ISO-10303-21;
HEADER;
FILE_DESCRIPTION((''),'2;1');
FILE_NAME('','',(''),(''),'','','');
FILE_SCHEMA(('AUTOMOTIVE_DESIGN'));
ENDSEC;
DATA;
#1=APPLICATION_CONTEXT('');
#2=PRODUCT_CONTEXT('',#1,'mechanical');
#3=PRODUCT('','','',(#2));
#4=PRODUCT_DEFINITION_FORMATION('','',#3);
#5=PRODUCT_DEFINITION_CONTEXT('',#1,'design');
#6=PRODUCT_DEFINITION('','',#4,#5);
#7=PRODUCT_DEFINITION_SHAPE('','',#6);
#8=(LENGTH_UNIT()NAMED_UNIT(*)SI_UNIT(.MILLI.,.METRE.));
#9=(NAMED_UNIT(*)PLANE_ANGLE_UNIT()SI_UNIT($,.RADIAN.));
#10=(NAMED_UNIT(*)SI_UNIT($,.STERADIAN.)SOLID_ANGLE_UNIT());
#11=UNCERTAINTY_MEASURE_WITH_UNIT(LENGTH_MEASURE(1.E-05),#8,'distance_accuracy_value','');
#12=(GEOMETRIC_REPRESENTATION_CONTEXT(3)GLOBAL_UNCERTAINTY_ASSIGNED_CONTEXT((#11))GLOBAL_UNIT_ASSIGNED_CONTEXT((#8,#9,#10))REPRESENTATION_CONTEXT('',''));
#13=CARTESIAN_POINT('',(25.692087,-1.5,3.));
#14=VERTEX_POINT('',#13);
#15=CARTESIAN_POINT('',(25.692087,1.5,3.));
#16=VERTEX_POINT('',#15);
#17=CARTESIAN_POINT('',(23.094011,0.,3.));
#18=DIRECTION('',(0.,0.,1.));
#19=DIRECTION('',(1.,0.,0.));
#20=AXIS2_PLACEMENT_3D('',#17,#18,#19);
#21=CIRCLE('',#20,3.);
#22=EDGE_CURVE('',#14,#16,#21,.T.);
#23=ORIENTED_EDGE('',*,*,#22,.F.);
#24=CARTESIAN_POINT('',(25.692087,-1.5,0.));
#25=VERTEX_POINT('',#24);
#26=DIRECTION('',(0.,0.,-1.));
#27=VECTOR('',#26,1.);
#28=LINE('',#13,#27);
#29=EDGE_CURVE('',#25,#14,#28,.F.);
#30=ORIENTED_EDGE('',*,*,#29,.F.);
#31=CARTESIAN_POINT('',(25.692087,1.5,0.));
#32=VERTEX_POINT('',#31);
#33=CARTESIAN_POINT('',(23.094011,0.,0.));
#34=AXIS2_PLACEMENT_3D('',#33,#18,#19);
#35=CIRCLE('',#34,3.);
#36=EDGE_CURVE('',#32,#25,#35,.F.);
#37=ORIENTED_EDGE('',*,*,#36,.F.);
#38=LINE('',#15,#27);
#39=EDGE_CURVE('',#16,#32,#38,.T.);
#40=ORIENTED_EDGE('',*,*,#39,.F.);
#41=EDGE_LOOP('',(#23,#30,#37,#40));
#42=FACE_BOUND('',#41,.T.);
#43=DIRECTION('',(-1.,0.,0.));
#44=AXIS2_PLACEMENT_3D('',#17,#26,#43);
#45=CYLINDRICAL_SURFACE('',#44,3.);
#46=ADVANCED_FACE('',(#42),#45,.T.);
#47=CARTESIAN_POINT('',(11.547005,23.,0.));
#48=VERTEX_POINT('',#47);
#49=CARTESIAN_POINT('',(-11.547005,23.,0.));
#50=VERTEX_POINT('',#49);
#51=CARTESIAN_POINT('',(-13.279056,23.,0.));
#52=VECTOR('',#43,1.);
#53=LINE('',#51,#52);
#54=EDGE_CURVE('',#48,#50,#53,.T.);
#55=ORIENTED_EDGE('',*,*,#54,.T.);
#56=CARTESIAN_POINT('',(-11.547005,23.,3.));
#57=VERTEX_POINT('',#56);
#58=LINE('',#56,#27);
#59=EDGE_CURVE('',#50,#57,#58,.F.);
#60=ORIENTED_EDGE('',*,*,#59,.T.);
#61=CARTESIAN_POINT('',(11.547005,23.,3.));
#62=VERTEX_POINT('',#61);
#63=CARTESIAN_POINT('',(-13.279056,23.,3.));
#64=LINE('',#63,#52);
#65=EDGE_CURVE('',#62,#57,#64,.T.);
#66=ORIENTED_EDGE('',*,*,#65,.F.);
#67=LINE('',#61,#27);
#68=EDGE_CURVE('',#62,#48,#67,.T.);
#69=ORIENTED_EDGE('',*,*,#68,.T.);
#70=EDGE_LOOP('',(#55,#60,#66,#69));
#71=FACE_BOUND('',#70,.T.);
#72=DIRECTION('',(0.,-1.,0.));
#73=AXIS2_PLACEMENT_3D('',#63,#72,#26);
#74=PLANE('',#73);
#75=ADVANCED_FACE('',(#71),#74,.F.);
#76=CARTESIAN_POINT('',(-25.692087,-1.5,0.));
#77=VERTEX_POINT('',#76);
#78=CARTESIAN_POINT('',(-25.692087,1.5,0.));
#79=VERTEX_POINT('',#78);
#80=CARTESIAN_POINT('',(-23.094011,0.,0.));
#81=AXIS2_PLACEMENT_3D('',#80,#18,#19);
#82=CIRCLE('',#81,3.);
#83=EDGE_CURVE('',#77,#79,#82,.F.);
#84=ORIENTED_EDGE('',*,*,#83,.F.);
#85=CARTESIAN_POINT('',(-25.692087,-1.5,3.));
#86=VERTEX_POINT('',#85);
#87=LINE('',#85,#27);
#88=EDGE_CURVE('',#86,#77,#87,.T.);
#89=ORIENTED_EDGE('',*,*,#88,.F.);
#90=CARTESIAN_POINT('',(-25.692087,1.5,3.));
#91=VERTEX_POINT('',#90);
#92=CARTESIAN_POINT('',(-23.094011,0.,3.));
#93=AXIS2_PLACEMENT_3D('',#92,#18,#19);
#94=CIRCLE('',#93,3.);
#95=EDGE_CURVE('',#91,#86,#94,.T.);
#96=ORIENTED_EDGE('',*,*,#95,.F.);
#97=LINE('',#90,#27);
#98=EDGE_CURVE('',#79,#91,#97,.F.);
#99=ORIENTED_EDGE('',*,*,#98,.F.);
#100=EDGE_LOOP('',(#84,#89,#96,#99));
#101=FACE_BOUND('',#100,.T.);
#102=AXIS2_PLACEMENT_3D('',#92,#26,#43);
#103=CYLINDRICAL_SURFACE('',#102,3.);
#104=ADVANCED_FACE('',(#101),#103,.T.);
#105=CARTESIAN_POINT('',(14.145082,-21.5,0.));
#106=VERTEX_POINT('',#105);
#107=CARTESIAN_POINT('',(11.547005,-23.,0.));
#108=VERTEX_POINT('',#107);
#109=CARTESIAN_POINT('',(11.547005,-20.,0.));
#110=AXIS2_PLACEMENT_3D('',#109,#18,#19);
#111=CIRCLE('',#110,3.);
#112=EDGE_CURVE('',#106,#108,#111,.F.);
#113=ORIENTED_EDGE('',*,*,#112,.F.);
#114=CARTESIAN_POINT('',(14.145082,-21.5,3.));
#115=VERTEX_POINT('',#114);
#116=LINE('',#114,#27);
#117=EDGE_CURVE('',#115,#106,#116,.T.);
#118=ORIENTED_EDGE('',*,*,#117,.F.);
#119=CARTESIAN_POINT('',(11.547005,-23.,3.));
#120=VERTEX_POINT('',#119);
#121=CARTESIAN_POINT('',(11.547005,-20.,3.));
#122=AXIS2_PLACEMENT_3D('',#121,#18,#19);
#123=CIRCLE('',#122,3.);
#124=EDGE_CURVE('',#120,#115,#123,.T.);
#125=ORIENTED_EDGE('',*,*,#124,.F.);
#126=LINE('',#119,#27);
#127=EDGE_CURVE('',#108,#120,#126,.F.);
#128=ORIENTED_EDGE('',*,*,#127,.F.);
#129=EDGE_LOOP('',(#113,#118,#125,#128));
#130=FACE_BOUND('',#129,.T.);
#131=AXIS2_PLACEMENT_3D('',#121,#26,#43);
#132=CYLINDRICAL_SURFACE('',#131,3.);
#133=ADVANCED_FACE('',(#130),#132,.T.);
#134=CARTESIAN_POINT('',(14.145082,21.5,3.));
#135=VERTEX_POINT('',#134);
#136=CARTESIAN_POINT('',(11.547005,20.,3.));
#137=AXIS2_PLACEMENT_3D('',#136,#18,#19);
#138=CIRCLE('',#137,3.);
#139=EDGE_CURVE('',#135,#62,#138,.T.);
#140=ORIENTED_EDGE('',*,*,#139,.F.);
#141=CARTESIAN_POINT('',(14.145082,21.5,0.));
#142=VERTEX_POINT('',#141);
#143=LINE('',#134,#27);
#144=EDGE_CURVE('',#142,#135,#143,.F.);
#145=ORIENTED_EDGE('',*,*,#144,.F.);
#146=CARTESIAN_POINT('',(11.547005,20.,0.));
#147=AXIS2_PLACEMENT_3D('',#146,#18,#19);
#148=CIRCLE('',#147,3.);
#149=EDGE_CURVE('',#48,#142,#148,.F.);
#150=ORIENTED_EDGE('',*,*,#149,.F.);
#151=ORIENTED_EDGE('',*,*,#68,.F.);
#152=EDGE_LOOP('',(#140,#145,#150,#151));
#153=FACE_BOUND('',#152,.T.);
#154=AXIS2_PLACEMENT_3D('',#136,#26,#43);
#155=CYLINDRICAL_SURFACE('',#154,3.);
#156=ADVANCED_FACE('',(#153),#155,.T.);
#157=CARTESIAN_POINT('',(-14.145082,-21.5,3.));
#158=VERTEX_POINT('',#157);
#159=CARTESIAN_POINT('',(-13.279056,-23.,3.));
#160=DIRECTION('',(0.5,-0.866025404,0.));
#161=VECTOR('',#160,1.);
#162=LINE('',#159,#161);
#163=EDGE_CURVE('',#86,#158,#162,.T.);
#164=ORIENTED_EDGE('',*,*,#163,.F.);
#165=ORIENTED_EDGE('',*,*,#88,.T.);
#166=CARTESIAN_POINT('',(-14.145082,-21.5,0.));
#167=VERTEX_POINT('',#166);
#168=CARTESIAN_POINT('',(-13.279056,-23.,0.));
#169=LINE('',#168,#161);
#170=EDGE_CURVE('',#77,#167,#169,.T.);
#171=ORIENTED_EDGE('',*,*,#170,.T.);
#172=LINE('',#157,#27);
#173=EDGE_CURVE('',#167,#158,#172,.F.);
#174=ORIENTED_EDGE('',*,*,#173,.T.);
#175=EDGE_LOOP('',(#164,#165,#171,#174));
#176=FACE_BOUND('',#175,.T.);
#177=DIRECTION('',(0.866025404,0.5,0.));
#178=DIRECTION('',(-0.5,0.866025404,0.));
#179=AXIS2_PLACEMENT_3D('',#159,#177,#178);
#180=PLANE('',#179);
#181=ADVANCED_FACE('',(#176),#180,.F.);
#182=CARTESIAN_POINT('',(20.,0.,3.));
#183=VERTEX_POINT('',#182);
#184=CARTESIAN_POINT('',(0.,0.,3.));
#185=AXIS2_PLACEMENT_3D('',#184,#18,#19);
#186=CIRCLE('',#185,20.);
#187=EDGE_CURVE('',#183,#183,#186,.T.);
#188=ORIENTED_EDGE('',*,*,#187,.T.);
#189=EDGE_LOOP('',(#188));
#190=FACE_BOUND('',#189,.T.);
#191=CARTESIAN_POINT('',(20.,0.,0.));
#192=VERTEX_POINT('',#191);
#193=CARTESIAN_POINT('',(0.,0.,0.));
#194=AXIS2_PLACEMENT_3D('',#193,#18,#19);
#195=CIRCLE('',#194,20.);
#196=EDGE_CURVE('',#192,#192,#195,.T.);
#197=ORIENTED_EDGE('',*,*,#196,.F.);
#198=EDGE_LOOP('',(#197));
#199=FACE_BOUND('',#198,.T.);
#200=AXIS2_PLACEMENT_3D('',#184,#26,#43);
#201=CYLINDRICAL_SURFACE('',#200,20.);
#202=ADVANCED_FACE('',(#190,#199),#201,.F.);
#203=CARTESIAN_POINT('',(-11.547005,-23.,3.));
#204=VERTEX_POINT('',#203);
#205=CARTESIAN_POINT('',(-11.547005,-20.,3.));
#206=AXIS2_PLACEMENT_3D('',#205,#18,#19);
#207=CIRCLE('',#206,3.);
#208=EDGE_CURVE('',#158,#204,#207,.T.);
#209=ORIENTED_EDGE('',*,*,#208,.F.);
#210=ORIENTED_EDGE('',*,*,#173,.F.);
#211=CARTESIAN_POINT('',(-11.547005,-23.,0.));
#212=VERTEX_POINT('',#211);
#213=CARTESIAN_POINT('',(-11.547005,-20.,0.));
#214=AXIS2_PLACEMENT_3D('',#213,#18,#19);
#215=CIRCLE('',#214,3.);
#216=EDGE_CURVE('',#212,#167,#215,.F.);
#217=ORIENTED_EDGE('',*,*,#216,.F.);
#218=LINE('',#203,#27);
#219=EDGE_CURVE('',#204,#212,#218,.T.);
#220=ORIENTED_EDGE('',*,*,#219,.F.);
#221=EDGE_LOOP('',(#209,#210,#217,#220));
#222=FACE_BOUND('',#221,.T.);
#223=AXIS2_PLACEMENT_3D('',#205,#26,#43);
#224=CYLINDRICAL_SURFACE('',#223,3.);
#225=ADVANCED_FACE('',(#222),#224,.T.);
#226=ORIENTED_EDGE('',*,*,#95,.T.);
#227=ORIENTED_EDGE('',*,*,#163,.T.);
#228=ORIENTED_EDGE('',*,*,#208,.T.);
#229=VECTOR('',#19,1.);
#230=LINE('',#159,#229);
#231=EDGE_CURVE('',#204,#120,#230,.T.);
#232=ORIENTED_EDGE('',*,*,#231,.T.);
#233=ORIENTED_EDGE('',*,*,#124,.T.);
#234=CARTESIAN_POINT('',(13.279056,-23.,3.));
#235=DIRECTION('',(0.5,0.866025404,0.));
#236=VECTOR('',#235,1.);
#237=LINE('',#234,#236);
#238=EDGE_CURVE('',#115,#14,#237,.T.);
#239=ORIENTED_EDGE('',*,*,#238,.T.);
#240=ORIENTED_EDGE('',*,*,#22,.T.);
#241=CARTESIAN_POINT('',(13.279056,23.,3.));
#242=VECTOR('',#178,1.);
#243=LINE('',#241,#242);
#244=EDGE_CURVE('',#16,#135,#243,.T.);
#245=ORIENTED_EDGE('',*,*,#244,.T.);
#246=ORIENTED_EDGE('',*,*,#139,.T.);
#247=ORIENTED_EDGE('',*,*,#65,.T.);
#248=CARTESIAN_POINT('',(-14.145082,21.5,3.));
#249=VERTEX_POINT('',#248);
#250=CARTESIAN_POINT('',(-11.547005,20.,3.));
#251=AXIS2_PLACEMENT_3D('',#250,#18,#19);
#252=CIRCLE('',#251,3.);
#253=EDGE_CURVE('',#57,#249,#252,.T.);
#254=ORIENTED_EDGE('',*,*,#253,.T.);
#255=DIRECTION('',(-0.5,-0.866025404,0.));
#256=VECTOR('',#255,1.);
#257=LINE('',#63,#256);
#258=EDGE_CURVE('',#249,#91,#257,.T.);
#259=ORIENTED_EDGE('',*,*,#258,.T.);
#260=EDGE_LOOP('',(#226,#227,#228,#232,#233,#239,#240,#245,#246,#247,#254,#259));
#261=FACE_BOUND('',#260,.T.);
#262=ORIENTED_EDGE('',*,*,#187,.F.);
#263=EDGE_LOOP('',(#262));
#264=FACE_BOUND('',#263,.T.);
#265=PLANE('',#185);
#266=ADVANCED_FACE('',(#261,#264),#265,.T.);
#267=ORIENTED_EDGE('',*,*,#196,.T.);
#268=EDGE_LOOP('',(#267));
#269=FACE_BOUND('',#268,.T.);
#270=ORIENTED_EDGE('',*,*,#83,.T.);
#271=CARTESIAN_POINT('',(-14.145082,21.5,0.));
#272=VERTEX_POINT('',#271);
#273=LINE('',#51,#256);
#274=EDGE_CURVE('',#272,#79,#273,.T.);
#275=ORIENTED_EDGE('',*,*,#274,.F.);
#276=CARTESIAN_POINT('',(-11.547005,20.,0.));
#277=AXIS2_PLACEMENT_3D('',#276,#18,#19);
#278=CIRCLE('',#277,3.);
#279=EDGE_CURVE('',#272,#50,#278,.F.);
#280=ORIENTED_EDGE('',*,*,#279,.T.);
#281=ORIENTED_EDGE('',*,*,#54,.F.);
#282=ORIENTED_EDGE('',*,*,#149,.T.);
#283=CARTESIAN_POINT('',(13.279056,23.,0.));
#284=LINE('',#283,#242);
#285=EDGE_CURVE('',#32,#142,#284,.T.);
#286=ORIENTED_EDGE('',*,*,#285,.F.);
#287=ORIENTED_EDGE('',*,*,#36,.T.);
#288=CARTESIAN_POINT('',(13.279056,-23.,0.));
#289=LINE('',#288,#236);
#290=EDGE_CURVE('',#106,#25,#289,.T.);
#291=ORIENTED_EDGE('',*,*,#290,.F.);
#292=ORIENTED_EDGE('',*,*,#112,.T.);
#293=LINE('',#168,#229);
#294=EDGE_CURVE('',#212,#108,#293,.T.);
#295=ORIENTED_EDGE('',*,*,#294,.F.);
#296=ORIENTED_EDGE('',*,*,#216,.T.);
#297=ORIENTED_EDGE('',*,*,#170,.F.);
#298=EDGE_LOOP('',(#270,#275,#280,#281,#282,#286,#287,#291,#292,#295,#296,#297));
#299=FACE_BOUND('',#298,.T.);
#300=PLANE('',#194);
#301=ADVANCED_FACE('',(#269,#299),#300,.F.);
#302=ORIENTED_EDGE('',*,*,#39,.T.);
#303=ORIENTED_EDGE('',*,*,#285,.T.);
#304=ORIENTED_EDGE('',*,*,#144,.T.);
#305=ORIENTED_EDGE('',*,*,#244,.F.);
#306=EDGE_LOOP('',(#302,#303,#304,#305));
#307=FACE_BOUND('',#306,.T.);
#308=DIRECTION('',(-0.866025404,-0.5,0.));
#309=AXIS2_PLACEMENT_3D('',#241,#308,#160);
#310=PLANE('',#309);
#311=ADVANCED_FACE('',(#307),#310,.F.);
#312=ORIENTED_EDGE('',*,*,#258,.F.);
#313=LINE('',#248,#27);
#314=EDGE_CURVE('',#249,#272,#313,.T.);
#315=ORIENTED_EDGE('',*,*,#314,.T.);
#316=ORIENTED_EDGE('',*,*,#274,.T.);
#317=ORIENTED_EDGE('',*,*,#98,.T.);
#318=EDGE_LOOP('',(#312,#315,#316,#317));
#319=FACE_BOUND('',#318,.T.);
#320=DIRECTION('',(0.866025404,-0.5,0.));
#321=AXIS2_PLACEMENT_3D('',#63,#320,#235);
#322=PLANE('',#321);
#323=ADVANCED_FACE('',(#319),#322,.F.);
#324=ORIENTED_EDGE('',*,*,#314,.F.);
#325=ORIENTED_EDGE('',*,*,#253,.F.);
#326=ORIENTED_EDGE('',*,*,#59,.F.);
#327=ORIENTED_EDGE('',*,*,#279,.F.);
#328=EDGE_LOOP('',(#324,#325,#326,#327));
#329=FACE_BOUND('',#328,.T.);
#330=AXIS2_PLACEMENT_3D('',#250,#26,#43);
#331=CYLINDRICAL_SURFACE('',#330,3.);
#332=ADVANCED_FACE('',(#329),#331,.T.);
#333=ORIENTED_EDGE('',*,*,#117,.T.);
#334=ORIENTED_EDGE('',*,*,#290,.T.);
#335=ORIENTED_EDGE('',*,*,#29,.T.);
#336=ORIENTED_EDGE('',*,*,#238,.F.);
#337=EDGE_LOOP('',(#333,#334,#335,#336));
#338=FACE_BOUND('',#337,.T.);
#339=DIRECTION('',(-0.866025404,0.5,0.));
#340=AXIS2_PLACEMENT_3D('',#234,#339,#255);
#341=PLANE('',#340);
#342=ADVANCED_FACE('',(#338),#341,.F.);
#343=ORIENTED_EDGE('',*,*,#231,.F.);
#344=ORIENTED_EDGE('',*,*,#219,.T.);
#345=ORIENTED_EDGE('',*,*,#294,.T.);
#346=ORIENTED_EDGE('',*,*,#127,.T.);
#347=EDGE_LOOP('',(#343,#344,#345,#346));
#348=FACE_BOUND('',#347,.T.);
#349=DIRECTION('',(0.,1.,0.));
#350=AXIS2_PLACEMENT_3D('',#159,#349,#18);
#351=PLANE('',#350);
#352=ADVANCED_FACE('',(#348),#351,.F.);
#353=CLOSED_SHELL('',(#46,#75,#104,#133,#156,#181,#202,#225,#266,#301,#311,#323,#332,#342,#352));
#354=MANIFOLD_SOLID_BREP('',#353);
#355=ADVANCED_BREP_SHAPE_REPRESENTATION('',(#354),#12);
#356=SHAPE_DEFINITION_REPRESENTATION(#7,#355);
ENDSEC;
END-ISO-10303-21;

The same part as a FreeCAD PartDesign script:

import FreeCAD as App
import Part
import Sketcher

V = App.Vector
Q = App.Units.Quantity


def edges_at(feature, points):
    """Names of the edges that pass closest to the given points."""
    edges = feature.Shape.Edges
    near = lambda p: min(range(len(edges)), key=lambda i: edges[i].distToShape(Part.Vertex(*p))[0])
    return sorted({f"Edge{near(p) + 1}" for p in points})


def add_polygon(sketch, points):
    """Adds a closed chain of lines whose ends are joined by coincident constraints."""
    first, n = sketch.GeometryCount, len(points)
    for a, b in zip(points, points[1:] + points[:1]):
        sketch.addGeometry(Part.LineSegment(App.Vector(*a, 0), App.Vector(*b, 0)), False)
    for i in range(n):
        sketch.addConstraint(Sketcher.Constraint("Coincident", first + i, 2, first + (i + 1) % n, 1))

doc = App.newDocument("Part")
body = doc.addObject("PartDesign::Body", "Body")

# Sketch on XY plane
sketch1 = doc.addObject("Sketcher::SketchObject", "Sketch")
body.addObject(sketch1)
sketch1.AttachmentSupport = (doc.XY_Plane, [""])
sketch1.MapMode = "FlatFace"
add_polygon(sketch1, [(-13.279056, 23), (-26.558112, 0), (-13.279056, -23), (13.279056, -23), (26.558112, 0), (13.279056, 23)])  # lines 0-5
sketch1.addGeometry(Part.Circle(V(0, 0, 0), V(0, 0, 1), 20), False)  # 6
sketch1.addConstraint(Sketcher.Constraint("Horizontal", 2))
sketch1.addConstraint(Sketcher.Constraint("Horizontal", 5))
sketch1.addConstraint(Sketcher.Constraint("Coincident", 6, 3, -1, 1))
sketch1.addConstraint(Sketcher.Constraint("Symmetric", 0, 2, 3, 2, -1, 1))
sketch1.addConstraint(Sketcher.Constraint("Symmetric", 1, 2, 4, 2, -1, 1))
sketch1.addConstraint(Sketcher.Constraint("PointOnObject", 0, 2, -1))
sketch1.addConstraint(Sketcher.Constraint("Parallel", 0, 3))
sketch1.addConstraint(Sketcher.Constraint("Vertical", 2, 2, 4, 2))
sketch1.addConstraint(Sketcher.Constraint("Diameter", 6, 40.0))
sketch1.addConstraint(Sketcher.Constraint("Angle", 0, Q("-120 deg")))
sketch1.addConstraint(Sketcher.Constraint("DistanceY", 1, 2, -1, 1, 23.0))
sketch1.addConstraint(Sketcher.Constraint("DistanceX", 2, 1, 2, 2, 26.558112))
pad1 = doc.addObject("PartDesign::Pad", "Pad")
body.addObject(pad1)
pad1.Profile = sketch1
pad1.Length = 3
doc.recompute()

fillet = doc.addObject("PartDesign::Fillet", "Fillet")
body.addObject(fillet)
fillet.Base = (pad1, edges_at(pad1, [
    (-26.558, 0, 1.5),
    (-13.279, 23, 1.5),
    (13.279, 23, 1.5),
    (26.558, 0, 1.5),
    (13.279, -23, 1.5),
    (-13.279, -23, 1.5),
]))
fillet.Radius = 3

doc.recompute()
